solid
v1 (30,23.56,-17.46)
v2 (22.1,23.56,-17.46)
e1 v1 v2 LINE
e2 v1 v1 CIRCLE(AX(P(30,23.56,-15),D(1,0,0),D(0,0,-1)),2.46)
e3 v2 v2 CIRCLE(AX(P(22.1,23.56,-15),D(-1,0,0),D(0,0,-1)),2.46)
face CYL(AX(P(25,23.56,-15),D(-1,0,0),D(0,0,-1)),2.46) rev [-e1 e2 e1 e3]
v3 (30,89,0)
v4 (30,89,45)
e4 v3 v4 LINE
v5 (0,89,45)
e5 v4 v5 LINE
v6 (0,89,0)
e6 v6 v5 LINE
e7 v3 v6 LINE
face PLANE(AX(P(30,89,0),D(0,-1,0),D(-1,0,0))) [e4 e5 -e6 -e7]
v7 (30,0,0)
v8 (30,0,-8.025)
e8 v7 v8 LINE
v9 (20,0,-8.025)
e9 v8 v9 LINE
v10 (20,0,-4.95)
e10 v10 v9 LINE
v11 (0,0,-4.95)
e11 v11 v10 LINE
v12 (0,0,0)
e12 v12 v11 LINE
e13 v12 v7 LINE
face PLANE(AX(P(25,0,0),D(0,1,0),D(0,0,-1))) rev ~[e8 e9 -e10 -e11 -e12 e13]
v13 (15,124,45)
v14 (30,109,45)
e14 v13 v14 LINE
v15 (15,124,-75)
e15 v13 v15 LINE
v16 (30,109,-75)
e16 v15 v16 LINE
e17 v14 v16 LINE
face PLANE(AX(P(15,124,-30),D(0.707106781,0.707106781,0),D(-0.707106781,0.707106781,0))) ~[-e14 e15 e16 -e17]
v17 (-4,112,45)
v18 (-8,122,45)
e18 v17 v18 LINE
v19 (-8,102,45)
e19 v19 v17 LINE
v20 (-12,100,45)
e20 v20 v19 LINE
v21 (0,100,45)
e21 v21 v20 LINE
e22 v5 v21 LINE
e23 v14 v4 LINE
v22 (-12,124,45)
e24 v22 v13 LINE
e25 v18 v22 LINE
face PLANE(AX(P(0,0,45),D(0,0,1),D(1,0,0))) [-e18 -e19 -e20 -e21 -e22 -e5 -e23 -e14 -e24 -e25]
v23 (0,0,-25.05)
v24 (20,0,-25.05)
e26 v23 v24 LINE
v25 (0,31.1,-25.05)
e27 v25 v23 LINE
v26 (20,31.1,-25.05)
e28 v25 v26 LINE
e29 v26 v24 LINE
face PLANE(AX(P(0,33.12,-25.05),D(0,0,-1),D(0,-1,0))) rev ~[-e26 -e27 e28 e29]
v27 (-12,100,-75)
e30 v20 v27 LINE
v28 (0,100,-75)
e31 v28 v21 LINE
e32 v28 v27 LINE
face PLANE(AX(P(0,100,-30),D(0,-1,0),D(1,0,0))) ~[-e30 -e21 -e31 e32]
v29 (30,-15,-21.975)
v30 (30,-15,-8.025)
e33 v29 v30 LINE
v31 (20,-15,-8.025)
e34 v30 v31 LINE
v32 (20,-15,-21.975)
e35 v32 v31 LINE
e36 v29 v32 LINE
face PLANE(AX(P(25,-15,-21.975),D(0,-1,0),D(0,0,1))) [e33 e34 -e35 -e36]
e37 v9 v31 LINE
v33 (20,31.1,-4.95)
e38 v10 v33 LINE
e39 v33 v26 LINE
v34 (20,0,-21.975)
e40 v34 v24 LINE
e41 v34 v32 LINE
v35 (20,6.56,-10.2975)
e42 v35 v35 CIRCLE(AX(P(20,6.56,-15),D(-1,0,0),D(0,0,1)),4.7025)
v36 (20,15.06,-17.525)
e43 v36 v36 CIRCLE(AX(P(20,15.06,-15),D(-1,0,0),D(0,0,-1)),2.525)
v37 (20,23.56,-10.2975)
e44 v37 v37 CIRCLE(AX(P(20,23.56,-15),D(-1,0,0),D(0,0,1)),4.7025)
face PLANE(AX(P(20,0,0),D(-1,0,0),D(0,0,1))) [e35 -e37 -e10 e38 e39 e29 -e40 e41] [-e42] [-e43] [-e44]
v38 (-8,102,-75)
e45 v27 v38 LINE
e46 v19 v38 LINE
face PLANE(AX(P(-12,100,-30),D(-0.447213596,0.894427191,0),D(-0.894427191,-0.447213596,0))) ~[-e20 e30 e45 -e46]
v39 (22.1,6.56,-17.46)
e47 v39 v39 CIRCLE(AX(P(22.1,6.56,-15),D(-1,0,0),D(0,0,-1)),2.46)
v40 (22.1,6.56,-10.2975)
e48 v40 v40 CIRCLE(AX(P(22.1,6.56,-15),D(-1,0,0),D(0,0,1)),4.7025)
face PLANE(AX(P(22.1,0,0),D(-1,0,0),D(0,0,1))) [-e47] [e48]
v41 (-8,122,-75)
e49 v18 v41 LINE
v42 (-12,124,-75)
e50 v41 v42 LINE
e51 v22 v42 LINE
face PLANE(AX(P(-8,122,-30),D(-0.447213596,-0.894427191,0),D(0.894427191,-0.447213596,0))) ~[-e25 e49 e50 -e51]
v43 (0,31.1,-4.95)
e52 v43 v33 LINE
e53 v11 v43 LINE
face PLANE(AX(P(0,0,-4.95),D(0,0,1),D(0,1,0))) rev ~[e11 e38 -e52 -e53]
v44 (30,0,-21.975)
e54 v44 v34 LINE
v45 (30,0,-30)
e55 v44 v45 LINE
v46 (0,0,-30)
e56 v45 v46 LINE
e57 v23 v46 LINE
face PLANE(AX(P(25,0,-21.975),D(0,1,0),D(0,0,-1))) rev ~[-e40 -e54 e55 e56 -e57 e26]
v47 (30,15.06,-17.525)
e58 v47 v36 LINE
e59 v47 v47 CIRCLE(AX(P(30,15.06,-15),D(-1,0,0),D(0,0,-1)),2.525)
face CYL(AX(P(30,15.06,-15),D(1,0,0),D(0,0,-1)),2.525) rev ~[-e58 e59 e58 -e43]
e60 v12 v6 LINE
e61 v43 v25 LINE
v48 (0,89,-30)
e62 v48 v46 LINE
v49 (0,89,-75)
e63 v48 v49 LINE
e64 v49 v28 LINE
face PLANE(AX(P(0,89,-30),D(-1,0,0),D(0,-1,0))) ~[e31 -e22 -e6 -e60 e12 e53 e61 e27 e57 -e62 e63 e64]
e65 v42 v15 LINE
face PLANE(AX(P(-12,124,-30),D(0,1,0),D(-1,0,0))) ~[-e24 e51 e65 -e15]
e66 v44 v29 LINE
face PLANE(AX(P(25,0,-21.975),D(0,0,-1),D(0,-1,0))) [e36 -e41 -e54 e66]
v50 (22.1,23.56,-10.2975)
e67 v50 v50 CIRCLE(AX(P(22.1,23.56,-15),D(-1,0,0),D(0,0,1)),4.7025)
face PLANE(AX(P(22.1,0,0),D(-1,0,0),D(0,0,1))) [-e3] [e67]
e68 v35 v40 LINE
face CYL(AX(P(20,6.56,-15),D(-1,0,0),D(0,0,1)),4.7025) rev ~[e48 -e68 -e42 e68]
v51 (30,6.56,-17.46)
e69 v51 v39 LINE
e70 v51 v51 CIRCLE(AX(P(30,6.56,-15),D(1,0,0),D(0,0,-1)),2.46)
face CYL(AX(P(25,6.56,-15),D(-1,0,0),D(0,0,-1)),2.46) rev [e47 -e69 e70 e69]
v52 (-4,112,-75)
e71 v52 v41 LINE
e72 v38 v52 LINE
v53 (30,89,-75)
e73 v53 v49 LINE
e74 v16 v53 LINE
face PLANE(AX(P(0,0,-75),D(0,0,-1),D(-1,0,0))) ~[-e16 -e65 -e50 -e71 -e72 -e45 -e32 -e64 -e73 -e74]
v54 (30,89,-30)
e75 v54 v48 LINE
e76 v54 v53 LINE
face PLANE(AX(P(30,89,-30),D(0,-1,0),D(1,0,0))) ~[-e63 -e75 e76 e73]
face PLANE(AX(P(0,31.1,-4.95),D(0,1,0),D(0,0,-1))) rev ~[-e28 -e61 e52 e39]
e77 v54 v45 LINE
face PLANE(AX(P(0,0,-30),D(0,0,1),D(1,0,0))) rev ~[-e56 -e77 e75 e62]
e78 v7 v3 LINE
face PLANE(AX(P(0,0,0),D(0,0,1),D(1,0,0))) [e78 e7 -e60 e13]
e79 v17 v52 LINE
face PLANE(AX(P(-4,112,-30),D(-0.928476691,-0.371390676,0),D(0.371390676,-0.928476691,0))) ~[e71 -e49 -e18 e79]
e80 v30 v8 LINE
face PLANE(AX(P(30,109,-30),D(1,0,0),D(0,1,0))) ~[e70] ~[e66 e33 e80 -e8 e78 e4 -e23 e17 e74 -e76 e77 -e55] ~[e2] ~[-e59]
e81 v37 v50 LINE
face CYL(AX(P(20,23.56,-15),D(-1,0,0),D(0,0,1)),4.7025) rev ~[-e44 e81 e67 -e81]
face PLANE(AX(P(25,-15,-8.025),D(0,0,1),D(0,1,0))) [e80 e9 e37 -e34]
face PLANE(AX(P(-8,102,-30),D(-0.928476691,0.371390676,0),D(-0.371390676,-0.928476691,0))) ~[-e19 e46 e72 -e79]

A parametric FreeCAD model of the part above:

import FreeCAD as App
import Part
import Sketcher
Q = App.Units.Quantity

doc = App.newDocument("Part")
body = doc.addObject("PartDesign::Body", "Body")

# Sketch on XY plane
sketch1 = doc.addObject("Sketcher::SketchObject", "Sketch")
body.addObject(sketch1)
sketch1.AttachmentSupport = (doc.XY_Plane, [""])
sketch1.MapMode = "FlatFace"
sketch1.addGeometry(Part.LineSegment(App.Vector(0, 40, 0), App.Vector(0, 0, 0)), False)
sketch1.addGeometry(Part.LineSegment(App.Vector(0, 0, 0), App.Vector(25, 0, 0)), False)
sketch1.addGeometry(Part.LineSegment(App.Vector(25, 0, 0), App.Vector(25, 40, 0)), False)
sketch1.addGeometry(Part.LineSegment(App.Vector(25, 40, 0), App.Vector(0, 40, 0)), False)
sketch1.addConstraint(Sketcher.Constraint("Coincident", 0, 2, 1, 1))
sketch1.addConstraint(Sketcher.Constraint("Coincident", 1, 2, 2, 1))
sketch1.addConstraint(Sketcher.Constraint("Coincident", 2, 2, 3, 1))
sketch1.addConstraint(Sketcher.Constraint("Coincident", 3, 2, 0, 1))
sketch1.addConstraint(Sketcher.Constraint("Vertical", 0))
sketch1.addConstraint(Sketcher.Constraint("Horizontal", 1))
sketch1.addConstraint(Sketcher.Constraint("Vertical", 2))
sketch1.addConstraint(Sketcher.Constraint("Horizontal", 3))
sketch1.addConstraint(Sketcher.Constraint("Coincident", 0, 2, -1, 1))
sketch1.addConstraint(Sketcher.Constraint("DistanceX", 1, 1, 1, 2, Q("25 mm")))
sketch1.addConstraint(Sketcher.Constraint("DistanceY", 0, 2, 0, 1, Q("40 mm")))
pad1 = doc.addObject("PartDesign::Pad", "Pad")
body.addObject(pad1)
pad1.Profile = sketch1
pad1.Length = 30
pad1.Reversed = True

# Sketch on YZ plane
sketch2 = doc.addObject("Sketcher::SketchObject", "Sketch001")
body.addObject(sketch2)
sketch2.AttachmentSupport = (doc.YZ_Plane, [""])
sketch2.MapMode = "FlatFace"
sketch2.AttachmentOffset = App.Placement(App.Vector(0, 0, 25), App.Rotation())
sketch2.addGeometry(Part.Circle(App.Vector(6.56, -15, 0), App.Vector(0, 0, 1), 2.46), False)
sketch2.addConstraint(Sketcher.Constraint("Diameter", 0, Q("4.92 mm")))
sketch2.addConstraint(Sketcher.Constraint("DistanceY", 0, 3, -1, 1, Q("15 mm")))
sketch2.addConstraint(Sketcher.Constraint("DistanceX", -1, 1, 0, 3, Q("6.56 mm")))
pocket1 = doc.addObject("PartDesign::Pocket", "Pocket")
body.addObject(pocket1)
pocket1.Profile = sketch2
pocket1.Length = 30

# Sketch on YZ plane
sketch3 = doc.addObject("Sketcher::SketchObject", "Sketch002")
body.addObject(sketch3)
sketch3.AttachmentSupport = (doc.YZ_Plane, [""])
sketch3.MapMode = "FlatFace"
sketch3.addGeometry(Part.LineSegment(App.Vector(0, -25.05, 0), App.Vector(0, -4.95, 0)), False)
sketch3.addGeometry(Part.LineSegment(App.Vector(0, -4.95, 0), App.Vector(33.12, -4.95, 0)), False)
sketch3.addGeometry(Part.LineSegment(App.Vector(33.12, -4.95, 0), App.Vector(33.12, -25.05, 0)), False)
sketch3.addGeometry(Part.LineSegment(App.Vector(33.12, -25.05, 0), App.Vector(0, -25.05, 0)), False)
sketch3.addConstraint(Sketcher.Constraint("Coincident", 0, 2, 1, 1))
sketch3.addConstraint(Sketcher.Constraint("Coincident", 1, 2, 2, 1))
sketch3.addConstraint(Sketcher.Constraint("Coincident", 2, 2, 3, 1))
sketch3.addConstraint(Sketcher.Constraint("Coincident", 3, 2, 0, 1))
sketch3.addConstraint(Sketcher.Constraint("Vertical", 0))
sketch3.addConstraint(Sketcher.Constraint("Horizontal", 1))
sketch3.addConstraint(Sketcher.Constraint("Vertical", 2))
sketch3.addConstraint(Sketcher.Constraint("Horizontal", 3))
sketch3.addConstraint(Sketcher.Constraint("PointOnObject", 0, 2, -2))
sketch3.addConstraint(Sketcher.Constraint("DistanceY", 0, 1, 0, 2, Q("20.1 mm")))
sketch3.addConstraint(Sketcher.Constraint("DistanceX", 1, 1, 1, 2, Q("33.12 mm")))
sketch3.addConstraint(Sketcher.Constraint("DistanceY", 0, 2, -1, 1, Q("4.95 mm")))
pocket2 = doc.addObject("PartDesign::Pocket", "Pocket001")
body.addObject(pocket2)
pocket2.Profile = sketch3
pocket2.Length = 20
pocket2.Reversed = True

# Sketch on XZ plane
sketch4 = doc.addObject("Sketcher::SketchObject", "Sketch003")
body.addObject(sketch4)
sketch4.AttachmentSupport = (doc.XZ_Plane, [""])
sketch4.MapMode = "FlatFace"
sketch4.addGeometry(Part.LineSegment(App.Vector(25, -8.025, 0), App.Vector(20, -8.025, 0)), False)
sketch4.addGeometry(Part.LineSegment(App.Vector(20, -8.025, 0), App.Vector(20, -21.975, 0)), False)
sketch4.addGeometry(Part.LineSegment(App.Vector(20, -21.975, 0), App.Vector(25, -21.975, 0)), False)
sketch4.addGeometry(Part.LineSegment(App.Vector(25, -21.975, 0), App.Vector(25, -8.025, 0)), False)
sketch4.addConstraint(Sketcher.Constraint("Coincident", 0, 2, 1, 1))
sketch4.addConstraint(Sketcher.Constraint("Coincident", 1, 2, 2, 1))
sketch4.addConstraint(Sketcher.Constraint("Coincident", 2, 2, 3, 1))
sketch4.addConstraint(Sketcher.Constraint("Coincident", 3, 2, 0, 1))
sketch4.addConstraint(Sketcher.Constraint("Horizontal", 0))
sketch4.addConstraint(Sketcher.Constraint("Vertical", 1))
sketch4.addConstraint(Sketcher.Constraint("Horizontal", 2))
sketch4.addConstraint(Sketcher.Constraint("Vertical", 3))
sketch4.addConstraint(Sketcher.Constraint("DistanceY", 1, 2, 1, 1, Q("13.95 mm")))
sketch4.addConstraint(Sketcher.Constraint("DistanceX", 0, 2, 0, 1, Q("5 mm")))
sketch4.addConstraint(Sketcher.Constraint("DistanceX", -1, 1, 0, 2, Q("20 mm")))
sketch4.addConstraint(Sketcher.Constraint("DistanceY", 0, 2, -1, 1, Q("8.025 mm")))
pad2 = doc.addObject("PartDesign::Pad", "Pad001")
body.addObject(pad2)
pad2.Profile = sketch4
pad2.Length = 15

# Sketch on YZ plane
sketch5 = doc.addObject("Sketcher::SketchObject", "Sketch004")
body.addObject(sketch5)
sketch5.AttachmentSupport = (doc.YZ_Plane, [""])
sketch5.MapMode = "FlatFace"
sketch5.AttachmentOffset = App.Placement(App.Vector(0, 0, 20), App.Rotation())
sketch5.addGeometry(Part.Circle(App.Vector(6.56, -15, 0), App.Vector(0, 0, 1), 4.7025), False)
sketch5.addGeometry(Part.Circle(App.Vector(6.56, -15, 0), App.Vector(0, 0, 1), 2.46), False)
sketch5.addConstraint(Sketcher.Constraint("Coincident", 1, 3, 0, 3))
sketch5.addConstraint(Sketcher.Constraint("Diameter", 0, Q("9.405 mm")))
sketch5.addConstraint(Sketcher.Constraint("Diameter", 1, Q("4.92 mm")))
sketch5.addConstraint(Sketcher.Constraint("DistanceY", 0, 3, -1, 1, Q("15 mm")))
sketch5.addConstraint(Sketcher.Constraint("DistanceX", -1, 1, 0, 3, Q("6.56 mm")))
pocket3 = doc.addObject("PartDesign::Pocket", "Pocket002")
body.addObject(pocket3)
pocket3.Profile = sketch5
pocket3.Length = 2.1
pocket3.Reversed = True

# Sketch on YZ plane
sketch6 = doc.addObject("Sketcher::SketchObject", "Sketch005")
body.addObject(sketch6)
sketch6.AttachmentSupport = (doc.YZ_Plane, [""])
sketch6.MapMode = "FlatFace"
sketch6.AttachmentOffset = App.Placement(App.Vector(0, 0, 25), App.Rotation())
sketch6.addGeometry(Part.Circle(App.Vector(23.56, -15, 0), App.Vector(0, 0, 1), 2.46), False)
sketch6.addConstraint(Sketcher.Constraint("Diameter", 0, Q("4.92 mm")))
sketch6.addConstraint(Sketcher.Constraint("DistanceY", 0, 3, -1, 1, Q("15 mm")))
sketch6.addConstraint(Sketcher.Constraint("DistanceX", -1, 1, 0, 3, Q("23.56 mm")))
pocket4 = doc.addObject("PartDesign::Pocket", "Pocket003")
body.addObject(pocket4)
pocket4.Profile = sketch6
pocket4.Length = 10

# Sketch on YZ plane
sketch7 = doc.addObject("Sketcher::SketchObject", "Sketch006")
body.addObject(sketch7)
sketch7.AttachmentSupport = (doc.YZ_Plane, [""])
sketch7.MapMode = "FlatFace"
sketch7.AttachmentOffset = App.Placement(App.Vector(0, 0, 20), App.Rotation())
sketch7.addGeometry(Part.Circle(App.Vector(23.56, -15, 0), App.Vector(0, 0, 1), 4.7025), False)
sketch7.addGeometry(Part.Circle(App.Vector(23.56, -15, 0), App.Vector(0, 0, 1), 2.46), False)
sketch7.addConstraint(Sketcher.Constraint("Coincident", 1, 3, 0, 3))
sketch7.addConstraint(Sketcher.Constraint("Diameter", 0, Q("9.405 mm")))
sketch7.addConstraint(Sketcher.Constraint("Diameter", 1, Q("4.92 mm")))
sketch7.addConstraint(Sketcher.Constraint("DistanceY", 0, 3, -1, 1, Q("15 mm")))
sketch7.addConstraint(Sketcher.Constraint("DistanceX", -1, 1, 0, 3, Q("23.56 mm")))
pocket5 = doc.addObject("PartDesign::Pocket", "Pocket004")
body.addObject(pocket5)
pocket5.Profile = sketch7
pocket5.Length = 2.1
pocket5.Reversed = True

# Sketch on YZ plane
sketch8 = doc.addObject("Sketcher::SketchObject", "Sketch007")
body.addObject(sketch8)
sketch8.AttachmentSupport = (doc.YZ_Plane, [""])
sketch8.MapMode = "FlatFace"
sketch8.AttachmentOffset = App.Placement(App.Vector(0, 0, 25), App.Rotation())
sketch8.addGeometry(Part.LineSegment(App.Vector(0, -30, 0), App.Vector(40, -30, 0)), False)
sketch8.addGeometry(Part.LineSegment(App.Vector(40, -30, 0), App.Vector(40, 0, 0)), False)
sketch8.addGeometry(Part.LineSegment(App.Vector(40, 0, 0), App.Vector(0, 0, 0)), False)
sketch8.addGeometry(Part.LineSegment(App.Vector(0, 0, 0), App.Vector(0, -8.025, 0)), False)
sketch8.addGeometry(Part.LineSegment(App.Vector(0, -8.025, 0), App.Vector(-15, -8.025, 0)), False)
sketch8.addGeometry(Part.LineSegment(App.Vector(-15, -8.025, 0), App.Vector(-15, -21.975, 0)), False)
sketch8.addGeometry(Part.LineSegment(App.Vector(-15, -21.975, 0), App.Vector(0, -21.975, 0)), False)
sketch8.addGeometry(Part.LineSegment(App.Vector(0, -21.975, 0), App.Vector(0, -30, 0)), False)
sketch8.addGeometry(Part.Circle(App.Vector(6.56, -15, 0), App.Vector(0, 0, 1), 2.46), False)
sketch8.addGeometry(Part.Circle(App.Vector(23.56, -15, 0), App.Vector(0, 0, 1), 2.46), False)
sketch8.addConstraint(Sketcher.Constraint("Coincident", 0, 2, 1, 1))
sketch8.addConstraint(Sketcher.Constraint("Coincident", 1, 2, 2, 1))
sketch8.addConstraint(Sketcher.Constraint("Coincident", 2, 2, 3, 1))
sketch8.addConstraint(Sketcher.Constraint("Coincident", 3, 2, 4, 1))
sketch8.addConstraint(Sketcher.Constraint("Coincident", 4, 2, 5, 1))
sketch8.addConstraint(Sketcher.Constraint("Coincident", 5, 2, 6, 1))
sketch8.addConstraint(Sketcher.Constraint("Coincident", 6, 2, 7, 1))
sketch8.addConstraint(Sketcher.Constraint("Coincident", 7, 2, 0, 1))
sketch8.addConstraint(Sketcher.Constraint("Horizontal", 0))
sketch8.addConstraint(Sketcher.Constraint("Vertical", 1))
sketch8.addConstraint(Sketcher.Constraint("Horizontal", 2))
sketch8.addConstraint(Sketcher.Constraint("Vertical", 3))
sketch8.addConstraint(Sketcher.Constraint("Horizontal", 4))
sketch8.addConstraint(Sketcher.Constraint("Vertical", 5))
sketch8.addConstraint(Sketcher.Constraint("Horizontal", 6))
sketch8.addConstraint(Sketcher.Constraint("Vertical", 7))
sketch8.addConstraint(Sketcher.Constraint("Coincident", 2, 2, -1, 1))
sketch8.addConstraint(Sketcher.Constraint("Equal", 8, 9))
sketch8.addConstraint(Sketcher.Constraint("PointOnObject", 6, 2, -2))
sketch8.addConstraint(Sketcher.Constraint("Horizontal", 8, 3, 9, 3))
sketch8.addConstraint(Sketcher.Constraint("Equal", 3, 7))
sketch8.addConstraint(Sketcher.Constraint("Diameter", 8, Q("4.92 mm")))
sketch8.addConstraint(Sketcher.Constraint("DistanceX", 0, 1, 0, 2, Q("40 mm")))
sketch8.addConstraint(Sketcher.Constraint("DistanceX", 4, 2, 4, 1, Q("15 mm")))
sketch8.addConstraint(Sketcher.Constraint("DistanceY", 1, 1, 1, 2, Q("30 mm")))
sketch8.addConstraint(Sketcher.Constraint("DistanceY", 8, 3, -1, 1, Q("15 mm")))
sketch8.addConstraint(Sketcher.Constraint("DistanceX", 8, 3, 9, 3, Q("17 mm")))
sketch8.addConstraint(Sketcher.Constraint("DistanceY", 5, 2, 5, 1, Q("13.95 mm")))
sketch8.addConstraint(Sketcher.Constraint("DistanceX", -1, 1, 8, 3, Q("6.56 mm")))
pad3 = doc.addObject("PartDesign::Pad", "Pad002")
body.addObject(pad3)
pad3.Profile = sketch8
pad3.Length = 5

# Sketch on XZ plane
sketch9 = doc.addObject("Sketcher::SketchObject", "Sketch008")
body.addObject(sketch9)
sketch9.AttachmentSupport = (doc.XZ_Plane, [""])
sketch9.MapMode = "FlatFace"
sketch9.AttachmentOffset = App.Placement(App.Vector(0, 0, -40), App.Rotation())
sketch9.addGeometry(Part.LineSegment(App.Vector(30, -30, 0), App.Vector(0, -30, 0)), False)
sketch9.addGeometry(Part.LineSegment(App.Vector(0, -30, 0), App.Vector(0, 0, 0)), False)
sketch9.addGeometry(Part.LineSegment(App.Vector(0, 0, 0), App.Vector(30, 0, 0)), False)
sketch9.addGeometry(Part.LineSegment(App.Vector(30, 0, 0), App.Vector(30, -30, 0)), False)
sketch9.addConstraint(Sketcher.Constraint("Coincident", 0, 2, 1, 1))
sketch9.addConstraint(Sketcher.Constraint("Coincident", 1, 2, 2, 1))
sketch9.addConstraint(Sketcher.Constraint("Coincident", 2, 2, 3, 1))
sketch9.addConstraint(Sketcher.Constraint("Coincident", 3, 2, 0, 1))
sketch9.addConstraint(Sketcher.Constraint("Horizontal", 0))
sketch9.addConstraint(Sketcher.Constraint("Vertical", 1))
sketch9.addConstraint(Sketcher.Constraint("Horizontal", 2))
sketch9.addConstraint(Sketcher.Constraint("Vertical", 3))
sketch9.addConstraint(Sketcher.Constraint("Coincident", 1, 2, -1, 1))
sketch9.addConstraint(Sketcher.Constraint("Equal", 2, 1))
sketch9.addConstraint(Sketcher.Constraint("DistanceX", 0, 2, 0, 1, Q("30 mm")))
pad4 = doc.addObject("PartDesign::Pad", "Pad003")
body.addObject(pad4)
pad4.Profile = sketch9
pad4.Length = 30
pad4.Reversed = True

# Sketch on YZ plane
sketch10 = doc.addObject("Sketcher::SketchObject", "Sketch009")
body.addObject(sketch10)
sketch10.AttachmentSupport = (doc.YZ_Plane, [""])
sketch10.MapMode = "FlatFace"
sketch10.AttachmentOffset = App.Placement(App.Vector(0, 0, 30), App.Rotation())
sketch10.addGeometry(Part.Circle(App.Vector(15.06, -15, 0), App.Vector(0, 0, 1), 2.525), False)
sketch10.addConstraint(Sketcher.Constraint("Diameter", 0, Q("5.05 mm")))
sketch10.addConstraint(Sketcher.Constraint("DistanceY", 0, 3, -1, 1, Q("15 mm")))
sketch10.addConstraint(Sketcher.Constraint("DistanceX", -1, 1, 0, 3, Q("15.06 mm")))
pocket6 = doc.addObject("PartDesign::Pocket", "Pocket005")
body.addObject(pocket6)
pocket6.Profile = sketch10
pocket6.Length = 30

# Sketch on XY plane
sketch11 = doc.addObject("Sketcher::SketchObject", "Sketch010")
body.addObject(sketch11)
sketch11.AttachmentSupport = (doc.XY_Plane, [""])
sketch11.MapMode = "FlatFace"
sketch11.addGeometry(Part.LineSegment(App.Vector(0, 70, 0), App.Vector(30, 70, 0)), False)
sketch11.addGeometry(Part.LineSegment(App.Vector(30, 70, 0), App.Vector(30, 109, 0)), False)
sketch11.addGeometry(Part.LineSegment(App.Vector(30, 109, 0), App.Vector(15, 124, 0)), False)
sketch11.addGeometry(Part.LineSegment(App.Vector(15, 124, 0), App.Vector(-12, 124, 0)), False)
sketch11.addGeometry(Part.LineSegment(App.Vector(-12, 124, 0), App.Vector(-8, 122, 0)), False)
sketch11.addGeometry(Part.LineSegment(App.Vector(-8, 122, 0), App.Vector(-4, 112, 0)), False)
sketch11.addGeometry(Part.LineSegment(App.Vector(-4, 112, 0), App.Vector(-8, 102, 0)), False)
sketch11.addGeometry(Part.LineSegment(App.Vector(-8, 102, 0), App.Vector(-12, 100, 0)), False)
sketch11.addGeometry(Part.LineSegment(App.Vector(-12, 100, 0), App.Vector(0, 100, 0)), False)
sketch11.addGeometry(Part.LineSegment(App.Vector(0, 100, 0), App.Vector(0, 70, 0)), False)
sketch11.addConstraint(Sketcher.Constraint("Coincident", 0, 2, 1, 1))
sketch11.addConstraint(Sketcher.Constraint("Coincident", 1, 2, 2, 1))
sketch11.addConstraint(Sketcher.Constraint("Coincident", 2, 2, 3, 1))
sketch11.addConstraint(Sketcher.Constraint("Coincident", 3, 2, 4, 1))
sketch11.addConstraint(Sketcher.Constraint("Coincident", 4, 2, 5, 1))
sketch11.addConstraint(Sketcher.Constraint("Coincident", 5, 2, 6, 1))
sketch11.addConstraint(Sketcher.Constraint("Coincident", 6, 2, 7, 1))
sketch11.addConstraint(Sketcher.Constraint("Coincident", 7, 2, 8, 1))
sketch11.addConstraint(Sketcher.Constraint("Coincident", 8, 2, 9, 1))
sketch11.addConstraint(Sketcher.Constraint("Coincident", 9, 2, 0, 1))
sketch11.addConstraint(Sketcher.Constraint("Horizontal", 0))
sketch11.addConstraint(Sketcher.Constraint("Vertical", 1))
sketch11.addConstraint(Sketcher.Constraint("Horizontal", 3))
sketch11.addConstraint(Sketcher.Constraint("Horizontal", 8))
sketch11.addConstraint(Sketcher.Constraint("Vertical", 9))
sketch11.addConstraint(Sketcher.Constraint("PointOnObject", 8, 2, -2))
sketch11.addConstraint(Sketcher.Constraint("Vertical", 4, 2, 6, 2))
sketch11.addConstraint(Sketcher.Constraint("Vertical", 3, 2, 7, 2))
sketch11.addConstraint(Sketcher.Constraint("Equal", 0, 9))
sketch11.addConstraint(Sketcher.Constraint("Equal", 5, 6))
sketch11.addConstraint(Sketcher.Constraint("Equal", 4, 7))
sketch11.addConstraint(Sketcher.Constraint("DistanceX", 8, 1, 8, 2, Q("12 mm")))
sketch11.addConstraint(Sketcher.Constraint("DistanceY", 5, 2, 3, 2, Q("12 mm")))
sketch11.addConstraint(Sketcher.Constraint("DistanceX", 0, 1, 0, 2, Q("30 mm")))
sketch11.addConstraint(Sketcher.Constraint("DistanceX", 3, 2, 3, 1, Q("27 mm")))
sketch11.addConstraint(Sketcher.Constraint("DistanceY", 1, 1, 1, 2, Q("39 mm")))
sketch11.addConstraint(Sketcher.Constraint("DistanceY", -1, 1, 0, 2, Q("70 mm")))
sketch11.addConstraint(Sketcher.Constraint("DistanceX", 4, 2, -1, 1, Q("8 mm")))
sketch11.addConstraint(Sketcher.Constraint("DistanceY", -1, 1, 4, 2, Q("122 mm")))
sketch11.addConstraint(Sketcher.Constraint("DistanceX", 5, 2, -1, 1, Q("4 mm")))
pad5 = doc.addObject("PartDesign::Pad", "Pad004")
body.addObject(pad5)
pad5.Profile = sketch11
pad5.Length = 30
pad5.Reversed = True

# Sketch on YZ plane
sketch12 = doc.addObject("Sketcher::SketchObject", "Sketch011")
body.addObject(sketch12)
sketch12.AttachmentSupport = (doc.YZ_Plane, [""])
sketch12.MapMode = "FlatFace"
sketch12.addGeometry(Part.LineSegment(App.Vector(33.12, -4.95, 0), App.Vector(33.12, -25.05, 0)), False)
sketch12.addGeometry(Part.LineSegment(App.Vector(33.12, -25.05, 0), App.Vector(31.1, -25.05, 0)), False)
sketch12.addGeometry(Part.LineSegment(App.Vector(31.1, -25.05, 0), App.Vector(31.1, -4.95, 0)), False)
sketch12.addGeometry(Part.LineSegment(App.Vector(31.1, -4.95, 0), App.Vector(33.12, -4.95, 0)), False)
sketch12.addConstraint(Sketcher.Constraint("Coincident", 0, 2, 1, 1))
sketch12.addConstraint(Sketcher.Constraint("Coincident", 1, 2, 2, 1))
sketch12.addConstraint(Sketcher.Constraint("Coincident", 2, 2, 3, 1))
sketch12.addConstraint(Sketcher.Constraint("Coincident", 3, 2, 0, 1))
sketch12.addConstraint(Sketcher.Constraint("Vertical", 0))
sketch12.addConstraint(Sketcher.Constraint("Horizontal", 1))
sketch12.addConstraint(Sketcher.Constraint("Vertical", 2))
sketch12.addConstraint(Sketcher.Constraint("Horizontal", 3))
sketch12.addConstraint(Sketcher.Constraint("DistanceX", 1, 2, 1, 1, Q("2.02 mm")))
sketch12.addConstraint(Sketcher.Constraint("DistanceY", 0, 2, 0, 1, Q("20.1 mm")))
sketch12.addConstraint(Sketcher.Constraint("DistanceX", -1, 1, 1, 2, Q("31.1 mm")))
sketch12.addConstraint(Sketcher.Constraint("DistanceY", 0, 2, -1, 1, Q("25.05 mm")))
pad6 = doc.addObject("PartDesign::Pad", "Pad005")
body.addObject(pad6)
pad6.Profile = sketch12
pad6.Length = 20

# Sketch on XY plane
sketch13 = doc.addObject("Sketcher::SketchObject", "Sketch012")
body.addObject(sketch13)
sketch13.AttachmentSupport = (doc.XY_Plane, [""])
sketch13.MapMode = "FlatFace"
sketch13.addGeometry(Part.LineSegment(App.Vector(-12, 100, 0), App.Vector(0, 100, 0)), False)
sketch13.addGeometry(Part.LineSegment(App.Vector(0, 100, 0), App.Vector(0, 89, 0)), False)
sketch13.addGeometry(Part.LineSegment(App.Vector(0, 89, 0), App.Vector(30, 89, 0)), False)
sketch13.addGeometry(Part.LineSegment(App.Vector(30, 89, 0), App.Vector(30, 109, 0)), False)
sketch13.addGeometry(Part.LineSegment(App.Vector(30, 109, 0), App.Vector(15, 124, 0)), False)
sketch13.addGeometry(Part.LineSegment(App.Vector(15, 124, 0), App.Vector(-12, 124, 0)), False)
sketch13.addGeometry(Part.LineSegment(App.Vector(-12, 124, 0), App.Vector(-8, 122, 0)), False)
sketch13.addGeometry(Part.LineSegment(App.Vector(-8, 122, 0), App.Vector(-4, 112, 0)), False)
sketch13.addGeometry(Part.LineSegment(App.Vector(-4, 112, 0), App.Vector(-8, 102, 0)), False)
sketch13.addGeometry(Part.LineSegment(App.Vector(-8, 102, 0), App.Vector(-12, 100, 0)), False)
sketch13.addConstraint(Sketcher.Constraint("Coincident", 0, 2, 1, 1))
sketch13.addConstraint(Sketcher.Constraint("Coincident", 1, 2, 2, 1))
sketch13.addConstraint(Sketcher.Constraint("Coincident", 2, 2, 3, 1))
sketch13.addConstraint(Sketcher.Constraint("Coincident", 3, 2, 4, 1))
sketch13.addConstraint(Sketcher.Constraint("Coincident", 4, 2, 5, 1))
sketch13.addConstraint(Sketcher.Constraint("Coincident", 5, 2, 6, 1))
sketch13.addConstraint(Sketcher.Constraint("Coincident", 6, 2, 7, 1))
sketch13.addConstraint(Sketcher.Constraint("Coincident", 7, 2, 8, 1))
sketch13.addConstraint(Sketcher.Constraint("Coincident", 8, 2, 9, 1))
sketch13.addConstraint(Sketcher.Constraint("Coincident", 9, 2, 0, 1))
sketch13.addConstraint(Sketcher.Constraint("Horizontal", 0))
sketch13.addConstraint(Sketcher.Constraint("Vertical", 1))
sketch13.addConstraint(Sketcher.Constraint("Horizontal", 2))
sketch13.addConstraint(Sketcher.Constraint("Vertical", 3))
sketch13.addConstraint(Sketcher.Constraint("Horizontal", 5))
sketch13.addConstraint(Sketcher.Constraint("PointOnObject", 0, 2, -2))
sketch13.addConstraint(Sketcher.Constraint("Vertical", 6, 2, 8, 2))
sketch13.addConstraint(Sketcher.Constraint("Vertical", 5, 2, 9, 2))
sketch13.addConstraint(Sketcher.Constraint("Equal", 7, 8))
sketch13.addConstraint(Sketcher.Constraint("Equal", 6, 9))
sketch13.addConstraint(Sketcher.Constraint("DistanceX", 2, 1, 2, 2, Q("30 mm")))
sketch13.addConstraint(Sketcher.Constraint("DistanceY", 3, 1, 3, 2, Q("20 mm")))
sketch13.addConstraint(Sketcher.Constraint("DistanceY", 8, 2, 6, 2, Q("20 mm")))
sketch13.addConstraint(Sketcher.Constraint("DistanceX", 0, 1, 0, 2, Q("12 mm")))
sketch13.addConstraint(Sketcher.Constraint("DistanceX", 5, 2, 5, 1, Q("27 mm")))
sketch13.addConstraint(Sketcher.Constraint("DistanceY", 1, 2, 1, 1, Q("11 mm")))
sketch13.addConstraint(Sketcher.Constraint("Angle", 4, Q("135 deg")))
sketch13.addConstraint(Sketcher.Constraint("DistanceY", -1, 1, 0, 2, Q("100 mm")))
sketch13.addConstraint(Sketcher.Constraint("DistanceX", 6, 2, -1, 1, Q("8 mm")))
sketch13.addConstraint(Sketcher.Constraint("DistanceX", 7, 2, -1, 1, Q("4 mm")))
pad7 = doc.addObject("PartDesign::Pad", "Pad006")
body.addObject(pad7)
pad7.Profile = sketch13
pad7.Length = 45
doc.recompute()

datumplane = doc.addObject("PartDesign::Plane", "DatumPlane")
body.addObject(datumplane)
datumplane.AttachmentSupport = (doc.XY_Plane, [""])
datumplane.MapMode = "FlatFace"
datumplane.AttachmentOffset = App.Placement(App.Vector(0, 0, -15), App.Rotation())
mirrored = doc.addObject("PartDesign::Mirrored", "Mirrored")
body.addObject(mirrored)
mirrored.Originals = [pad7]
mirrored.MirrorPlane = (datumplane, [""])
body.Tip = mirrored

doc.recompute()
